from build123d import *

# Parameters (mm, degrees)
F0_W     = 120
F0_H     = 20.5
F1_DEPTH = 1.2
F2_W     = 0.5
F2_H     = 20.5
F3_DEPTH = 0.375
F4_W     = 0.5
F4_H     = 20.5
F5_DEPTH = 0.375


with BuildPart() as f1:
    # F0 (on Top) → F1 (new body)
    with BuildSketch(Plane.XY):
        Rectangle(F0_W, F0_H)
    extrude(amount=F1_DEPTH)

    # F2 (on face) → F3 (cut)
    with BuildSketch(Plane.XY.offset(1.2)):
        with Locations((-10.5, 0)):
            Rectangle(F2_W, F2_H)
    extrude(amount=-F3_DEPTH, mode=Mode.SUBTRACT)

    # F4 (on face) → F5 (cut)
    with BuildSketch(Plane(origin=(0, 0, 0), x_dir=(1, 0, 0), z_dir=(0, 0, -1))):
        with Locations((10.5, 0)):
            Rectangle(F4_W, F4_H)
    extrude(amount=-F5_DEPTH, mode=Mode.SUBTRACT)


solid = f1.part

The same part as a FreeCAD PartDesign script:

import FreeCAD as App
import Part
import Sketcher
Q = App.Units.Quantity

doc = App.newDocument("Part")
body = doc.addObject("PartDesign::Body", "Body")

# Sketch on XY plane
sketch1 = doc.addObject("Sketcher::SketchObject", "Sketch")
body.addObject(sketch1)
sketch1.AttachmentSupport = (doc.XY_Plane, [""])
sketch1.MapMode = "FlatFace"
sketch1.addGeometry(Part.LineSegment(App.Vector(-60, 10, 0), App.Vector(-60, -10, 0)), False)
sketch1.addGeometry(Part.LineSegment(App.Vector(-60, -10, 0), App.Vector(60, -10, 0)), False)
sketch1.addGeometry(Part.LineSegment(App.Vector(60, -10, 0), App.Vector(60, 10, 0)), False)
sketch1.addGeometry(Part.LineSegment(App.Vector(60, 10, 0), App.Vector(-60, 10, 0)), False)
sketch1.addConstraint(Sketcher.Constraint("Coincident", 0, 2, 1, 1))
sketch1.addConstraint(Sketcher.Constraint("Coincident", 1, 2, 2, 1))
sketch1.addConstraint(Sketcher.Constraint("Coincident", 2, 2, 3, 1))
sketch1.addConstraint(Sketcher.Constraint("Coincident", 3, 2, 0, 1))
sketch1.addConstraint(Sketcher.Constraint("Vertical", 0))
sketch1.addConstraint(Sketcher.Constraint("Horizontal", 1))
sketch1.addConstraint(Sketcher.Constraint("Vertical", 2))
sketch1.addConstraint(Sketcher.Constraint("Horizontal", 3))
sketch1.addConstraint(Sketcher.Constraint("Symmetric", 0, 2, 2, 2, -1, 1))
sketch1.addConstraint(Sketcher.Constraint("DistanceX", 1, 1, 1, 2, Q("120 mm")))
sketch1.addConstraint(Sketcher.Constraint("DistanceY", 0, 2, 0, 1, Q("20.5 mm")))
pad1 = doc.addObject("PartDesign::Pad", "Pad")
body.addObject(pad1)
pad1.Profile = sketch1
pad1.Length = 1.2

# Sketch on XY plane
sketch2 = doc.addObject("Sketcher::SketchObject", "Sketch001")
body.addObject(sketch2)
sketch2.AttachmentSupport = (doc.XY_Plane, [""])
sketch2.MapMode = "FlatFace"
sketch2.AttachmentOffset = App.Placement(App.Vector(0, 0, 1.2), App.Rotation())
sketch2.addGeometry(Part.LineSegment(App.Vector(-10.8, 10.2, 0), App.Vector(-10.8, -10.2, 0)), False)
sketch2.addGeometry(Part.LineSegment(App.Vector(-10.8, -10.2, 0), App.Vector(-10.2, -10.2, 0)), False)
sketch2.addGeometry(Part.LineSegment(App.Vector(-10.2, -10.2, 0), App.Vector(-10.2, 10.2, 0)), False)
sketch2.addGeometry(Part.LineSegment(App.Vector(-10.2, 10.2, 0), App.Vector(-10.8, 10.2, 0)), False)
sketch2.addConstraint(Sketcher.Constraint("Coincident", 0, 2, 1, 1))
sketch2.addConstraint(Sketcher.Constraint("Coincident", 1, 2, 2, 1))
sketch2.addConstraint(Sketcher.Constraint("Coincident", 2, 2, 3, 1))
sketch2.addConstraint(Sketcher.Constraint("Coincident", 3, 2, 0, 1))
sketch2.addConstraint(Sketcher.Constraint("Vertical", 0))
sketch2.addConstraint(Sketcher.Constraint("Horizontal", 1))
sketch2.addConstraint(Sketcher.Constraint("Vertical", 2))
sketch2.addConstraint(Sketcher.Constraint("Horizontal", 3))
sketch2.addConstraint(Sketcher.Constraint("DistanceX", 1, 1, 1, 2, Q("0.5 mm")))
sketch2.addConstraint(Sketcher.Constraint("DistanceY", 0, 2, 0, 1, Q("20.5 mm")))
sketch2.addConstraint(Sketcher.Constraint("DistanceX", 0, 2, -1, 1, Q("10.75 mm")))
sketch2.addConstraint(Sketcher.Constraint("DistanceY", 0, 2, -1, 1, Q("10.25 mm")))
pocket1 = doc.addObject("PartDesign::Pocket", "Pocket")
body.addObject(pocket1)
pocket1.Profile = sketch2
pocket1.Length = 0.375

# Sketch on XY plane
sketch3 = doc.addObject("Sketcher::SketchObject", "Sketch002")
body.addObject(sketch3)
sketch3.AttachmentSupport = (doc.XY_Plane, [""])
sketch3.MapMode = "FlatFace"
sketch3.addGeometry(Part.LineSegment(App.Vector(10.2, -10.2, 0), App.Vector(10.2, 10.2, 0)), False)
sketch3.addGeometry(Part.LineSegment(App.Vector(10.2, 10.2, 0), App.Vector(10.8, 10.2, 0)), False)
sketch3.addGeometry(Part.LineSegment(App.Vector(10.8, 10.2, 0), App.Vector(10.8, -10.2, 0)), False)
sketch3.addGeometry(Part.LineSegment(App.Vector(10.8, -10.2, 0), App.Vector(10.2, -10.2, 0)), False)
sketch3.addConstraint(Sketcher.Constraint("Coincident", 0, 2, 1, 1))
sketch3.addConstraint(Sketcher.Constraint("Coincident", 1, 2, 2, 1))
sketch3.addConstraint(Sketcher.Constraint("Coincident", 2, 2, 3, 1))
sketch3.addConstraint(Sketcher.Constraint("Coincident", 3, 2, 0, 1))
sketch3.addConstraint(Sketcher.Constraint("Vertical", 0))
sketch3.addConstraint(Sketcher.Constraint("Horizontal", 1))
sketch3.addConstraint(Sketcher.Constraint("Vertical", 2))
sketch3.addConstraint(Sketcher.Constraint("Horizontal", 3))
sketch3.addConstraint(Sketcher.Constraint("DistanceX", 1, 1, 1, 2, Q("0.5 mm")))
sketch3.addConstraint(Sketcher.Constraint("DistanceY", 0, 1, 0, 2, Q("20.5 mm")))
sketch3.addConstraint(Sketcher.Constraint("DistanceX", -1, 1, 0, 2, Q("10.25 mm")))
sketch3.addConstraint(Sketcher.Constraint("DistanceY", -1, 1, 0, 2, Q("10.25 mm")))
pocket2 = doc.addObject("PartDesign::Pocket", "Pocket001")
body.addObject(pocket2)
pocket2.Profile = sketch3
pocket2.Length = 0.375
pocket2.Reversed = True

doc.recompute()
